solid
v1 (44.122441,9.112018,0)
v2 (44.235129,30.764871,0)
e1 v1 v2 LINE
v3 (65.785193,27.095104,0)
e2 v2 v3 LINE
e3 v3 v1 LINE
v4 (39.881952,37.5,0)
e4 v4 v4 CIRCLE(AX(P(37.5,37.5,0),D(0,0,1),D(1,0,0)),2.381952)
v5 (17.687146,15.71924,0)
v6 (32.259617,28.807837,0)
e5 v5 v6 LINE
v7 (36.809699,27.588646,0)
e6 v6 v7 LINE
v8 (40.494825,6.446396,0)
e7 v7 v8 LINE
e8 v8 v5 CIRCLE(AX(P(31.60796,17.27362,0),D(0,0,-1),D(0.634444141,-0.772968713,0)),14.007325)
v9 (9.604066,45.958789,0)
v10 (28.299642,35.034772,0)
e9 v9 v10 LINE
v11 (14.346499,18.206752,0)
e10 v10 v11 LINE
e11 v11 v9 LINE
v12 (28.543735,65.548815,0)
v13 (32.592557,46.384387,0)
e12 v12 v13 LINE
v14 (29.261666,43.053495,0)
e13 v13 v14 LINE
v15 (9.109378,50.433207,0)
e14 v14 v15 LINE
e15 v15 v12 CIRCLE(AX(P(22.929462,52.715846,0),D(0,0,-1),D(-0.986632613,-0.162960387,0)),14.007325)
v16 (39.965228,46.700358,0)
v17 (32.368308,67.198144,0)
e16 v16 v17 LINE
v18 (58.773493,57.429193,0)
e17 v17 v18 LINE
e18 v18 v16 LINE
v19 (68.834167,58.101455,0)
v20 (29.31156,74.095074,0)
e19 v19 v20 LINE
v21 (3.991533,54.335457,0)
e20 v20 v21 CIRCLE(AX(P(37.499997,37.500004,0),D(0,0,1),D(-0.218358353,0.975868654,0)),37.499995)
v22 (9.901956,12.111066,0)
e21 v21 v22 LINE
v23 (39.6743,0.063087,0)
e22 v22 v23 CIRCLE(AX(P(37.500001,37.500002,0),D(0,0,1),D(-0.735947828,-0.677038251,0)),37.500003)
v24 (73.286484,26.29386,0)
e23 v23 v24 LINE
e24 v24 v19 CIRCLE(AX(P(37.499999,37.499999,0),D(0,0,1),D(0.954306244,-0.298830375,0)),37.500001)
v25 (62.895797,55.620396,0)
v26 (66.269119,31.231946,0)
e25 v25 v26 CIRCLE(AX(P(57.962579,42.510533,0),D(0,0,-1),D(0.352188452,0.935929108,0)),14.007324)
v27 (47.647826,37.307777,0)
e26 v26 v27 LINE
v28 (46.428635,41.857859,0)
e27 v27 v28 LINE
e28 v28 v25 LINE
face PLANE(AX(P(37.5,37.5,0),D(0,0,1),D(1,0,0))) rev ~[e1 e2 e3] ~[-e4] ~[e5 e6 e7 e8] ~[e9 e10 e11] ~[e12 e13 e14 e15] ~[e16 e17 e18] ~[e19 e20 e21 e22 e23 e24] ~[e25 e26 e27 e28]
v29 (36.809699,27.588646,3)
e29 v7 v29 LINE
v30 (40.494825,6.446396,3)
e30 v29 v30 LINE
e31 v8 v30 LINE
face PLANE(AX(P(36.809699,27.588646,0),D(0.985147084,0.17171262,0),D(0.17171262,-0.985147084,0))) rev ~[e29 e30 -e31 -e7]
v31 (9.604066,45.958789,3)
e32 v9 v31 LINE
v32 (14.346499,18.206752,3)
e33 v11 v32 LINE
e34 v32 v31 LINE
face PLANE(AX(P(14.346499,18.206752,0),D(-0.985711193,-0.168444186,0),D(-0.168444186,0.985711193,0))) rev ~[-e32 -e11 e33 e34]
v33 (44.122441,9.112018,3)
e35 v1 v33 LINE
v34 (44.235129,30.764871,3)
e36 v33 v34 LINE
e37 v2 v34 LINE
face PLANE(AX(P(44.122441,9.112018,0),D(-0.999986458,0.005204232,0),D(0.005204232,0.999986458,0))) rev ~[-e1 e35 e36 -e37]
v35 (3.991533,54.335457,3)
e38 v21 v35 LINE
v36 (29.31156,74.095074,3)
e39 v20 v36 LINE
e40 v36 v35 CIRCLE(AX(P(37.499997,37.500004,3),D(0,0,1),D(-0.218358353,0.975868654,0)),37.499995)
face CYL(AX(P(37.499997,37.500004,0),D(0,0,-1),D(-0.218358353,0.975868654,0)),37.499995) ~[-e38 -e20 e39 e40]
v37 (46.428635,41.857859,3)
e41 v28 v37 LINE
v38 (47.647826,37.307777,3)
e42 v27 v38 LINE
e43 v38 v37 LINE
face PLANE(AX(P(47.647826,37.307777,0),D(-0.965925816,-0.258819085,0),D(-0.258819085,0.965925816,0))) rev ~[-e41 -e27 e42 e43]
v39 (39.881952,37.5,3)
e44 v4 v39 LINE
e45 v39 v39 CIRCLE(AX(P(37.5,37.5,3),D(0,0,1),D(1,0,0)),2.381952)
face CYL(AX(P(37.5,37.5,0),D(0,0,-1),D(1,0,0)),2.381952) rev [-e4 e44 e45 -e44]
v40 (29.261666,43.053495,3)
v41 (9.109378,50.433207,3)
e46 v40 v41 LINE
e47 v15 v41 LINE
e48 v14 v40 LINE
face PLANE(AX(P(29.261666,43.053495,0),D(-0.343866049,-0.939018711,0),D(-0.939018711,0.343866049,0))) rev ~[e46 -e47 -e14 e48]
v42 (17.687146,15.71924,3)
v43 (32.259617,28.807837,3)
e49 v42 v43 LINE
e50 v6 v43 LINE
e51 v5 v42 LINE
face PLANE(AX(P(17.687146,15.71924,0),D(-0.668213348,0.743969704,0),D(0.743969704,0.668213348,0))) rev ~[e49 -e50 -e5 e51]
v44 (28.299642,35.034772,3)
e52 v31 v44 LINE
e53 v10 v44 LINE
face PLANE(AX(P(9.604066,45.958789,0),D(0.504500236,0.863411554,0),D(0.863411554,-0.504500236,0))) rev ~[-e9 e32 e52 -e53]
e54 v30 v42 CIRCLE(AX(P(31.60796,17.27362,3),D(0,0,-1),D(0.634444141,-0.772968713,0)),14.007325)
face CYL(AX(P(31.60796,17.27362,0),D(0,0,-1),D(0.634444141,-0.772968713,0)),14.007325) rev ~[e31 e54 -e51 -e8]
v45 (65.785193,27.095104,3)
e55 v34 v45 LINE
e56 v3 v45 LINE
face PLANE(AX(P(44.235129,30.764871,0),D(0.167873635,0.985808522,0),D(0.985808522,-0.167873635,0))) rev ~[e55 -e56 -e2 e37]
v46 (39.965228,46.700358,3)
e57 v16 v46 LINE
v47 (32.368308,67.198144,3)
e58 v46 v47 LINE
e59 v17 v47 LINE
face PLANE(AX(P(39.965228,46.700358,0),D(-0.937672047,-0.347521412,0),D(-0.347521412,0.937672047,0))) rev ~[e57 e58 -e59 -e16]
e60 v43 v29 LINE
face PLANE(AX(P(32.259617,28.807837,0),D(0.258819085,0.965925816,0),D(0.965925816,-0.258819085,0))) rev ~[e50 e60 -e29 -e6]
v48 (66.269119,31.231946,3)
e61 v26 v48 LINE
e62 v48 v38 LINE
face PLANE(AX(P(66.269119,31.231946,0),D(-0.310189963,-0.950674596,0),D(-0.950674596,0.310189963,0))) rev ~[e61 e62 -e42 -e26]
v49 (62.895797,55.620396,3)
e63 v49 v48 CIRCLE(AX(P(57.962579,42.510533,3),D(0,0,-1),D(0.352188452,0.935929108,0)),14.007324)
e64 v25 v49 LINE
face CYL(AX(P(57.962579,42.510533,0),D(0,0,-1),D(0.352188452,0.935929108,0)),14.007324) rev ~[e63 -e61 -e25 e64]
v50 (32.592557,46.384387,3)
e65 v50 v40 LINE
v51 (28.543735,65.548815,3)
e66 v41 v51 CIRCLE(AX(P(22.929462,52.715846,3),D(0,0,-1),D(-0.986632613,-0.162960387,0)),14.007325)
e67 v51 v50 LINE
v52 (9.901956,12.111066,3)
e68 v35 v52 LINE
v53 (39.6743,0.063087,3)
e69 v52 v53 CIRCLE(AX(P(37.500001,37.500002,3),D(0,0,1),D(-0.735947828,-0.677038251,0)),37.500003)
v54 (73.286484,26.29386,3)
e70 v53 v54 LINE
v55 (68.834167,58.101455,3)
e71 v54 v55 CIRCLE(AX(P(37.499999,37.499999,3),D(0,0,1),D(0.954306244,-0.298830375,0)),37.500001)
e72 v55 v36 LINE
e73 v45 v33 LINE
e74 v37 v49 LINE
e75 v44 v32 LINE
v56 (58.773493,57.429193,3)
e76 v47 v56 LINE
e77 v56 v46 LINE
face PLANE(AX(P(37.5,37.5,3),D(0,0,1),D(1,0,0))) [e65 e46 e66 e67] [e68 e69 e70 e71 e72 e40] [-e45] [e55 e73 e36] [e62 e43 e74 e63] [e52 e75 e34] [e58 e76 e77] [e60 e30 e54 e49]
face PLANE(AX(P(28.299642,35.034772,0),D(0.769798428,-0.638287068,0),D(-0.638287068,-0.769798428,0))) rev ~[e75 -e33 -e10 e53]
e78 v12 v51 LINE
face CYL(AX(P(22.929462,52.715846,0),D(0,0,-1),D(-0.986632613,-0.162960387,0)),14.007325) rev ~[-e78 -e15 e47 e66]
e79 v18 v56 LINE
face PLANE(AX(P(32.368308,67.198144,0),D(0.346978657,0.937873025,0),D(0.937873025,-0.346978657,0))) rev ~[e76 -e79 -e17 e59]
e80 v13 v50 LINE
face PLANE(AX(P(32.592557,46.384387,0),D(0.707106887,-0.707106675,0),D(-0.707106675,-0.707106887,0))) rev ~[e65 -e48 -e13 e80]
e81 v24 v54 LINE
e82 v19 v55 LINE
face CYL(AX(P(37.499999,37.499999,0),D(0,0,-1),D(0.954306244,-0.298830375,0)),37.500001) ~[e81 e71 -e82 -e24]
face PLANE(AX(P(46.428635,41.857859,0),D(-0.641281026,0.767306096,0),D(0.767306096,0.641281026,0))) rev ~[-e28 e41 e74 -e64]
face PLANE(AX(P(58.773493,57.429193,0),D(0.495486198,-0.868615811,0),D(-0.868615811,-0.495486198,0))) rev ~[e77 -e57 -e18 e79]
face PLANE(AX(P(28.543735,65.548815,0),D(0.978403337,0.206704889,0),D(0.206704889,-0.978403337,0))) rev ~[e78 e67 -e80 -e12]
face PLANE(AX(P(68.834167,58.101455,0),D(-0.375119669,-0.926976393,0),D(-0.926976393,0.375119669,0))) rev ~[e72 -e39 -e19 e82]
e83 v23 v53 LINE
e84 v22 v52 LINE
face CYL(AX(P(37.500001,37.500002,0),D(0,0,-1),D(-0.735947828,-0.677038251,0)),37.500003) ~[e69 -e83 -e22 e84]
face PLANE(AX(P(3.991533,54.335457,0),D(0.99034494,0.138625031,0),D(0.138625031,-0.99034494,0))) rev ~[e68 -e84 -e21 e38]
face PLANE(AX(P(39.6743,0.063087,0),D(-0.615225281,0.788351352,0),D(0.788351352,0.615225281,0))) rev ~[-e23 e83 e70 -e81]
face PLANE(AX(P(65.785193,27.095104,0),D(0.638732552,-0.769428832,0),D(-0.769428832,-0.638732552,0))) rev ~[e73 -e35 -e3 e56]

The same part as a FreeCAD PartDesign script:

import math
import FreeCAD as App
import Part
import Sketcher

V = App.Vector
Q = App.Units.Quantity


def add_polygon(sketch, points):
    """Adds a closed chain of lines whose ends are joined by coincident constraints."""
    first, n = sketch.GeometryCount, len(points)
    for a, b in zip(points, points[1:] + points[:1]):
        sketch.addGeometry(Part.LineSegment(App.Vector(*a, 0), App.Vector(*b, 0)), False)
    for i in range(n):
        sketch.addConstraint(Sketcher.Constraint("Coincident", first + i, 2, first + (i + 1) % n, 1))

doc = App.newDocument("Part")
body = doc.addObject("PartDesign::Body", "Body")

# Sketch on XY plane
sketch1 = body.newObject("Sketcher::SketchObject", "Sketch")
sketch1.AttachmentSupport = (doc.getObject("XY_Plane"), [""])
sketch1.MapMode = "FlatFace"
sketch1.addGeometry(Part.LineSegment(V(68.834167, 58.101455, 0), V(29.31156, 74.095074, 0)), False)  # 0
sketch1.addGeometry(Part.ArcOfCircle(Part.Circle(V(37.499997, 37.500004, 0), V(0, 0, 1), 37.499995), math.radians(102.612629), math.radians(153.323954)), False)  # 1
sketch1.addGeometry(Part.LineSegment(V(3.991533, 54.335457, 0), V(9.901956, 12.111066, 0)), False)  # 2
sketch1.addGeometry(Part.ArcOfCircle(Part.Circle(V(37.500001, 37.500002, 0), V(0, 0, 1), 37.500003), math.radians(-137.387367), math.radians(-86.676053)), False)  # 3
sketch1.addGeometry(Part.LineSegment(V(39.6743, 0.063087, 0), V(73.286484, 26.29386, 0)), False)  # 4
sketch1.addGeometry(Part.ArcOfCircle(Part.Circle(V(37.499999, 37.499999, 0), V(0, 0, 1), 37.500001), math.radians(-17.387366), math.radians(33.32395)), False)  # 5
sketch1.addGeometry(Part.LineSegment(V(36.809699, 27.588646, 0), V(40.494825, 6.446396, 0)), False)  # 6
sketch1.addGeometry(Part.ArcOfCircle(Part.Circle(V(31.60796, 17.27362, 0), V(0, 0, 1), 14.007325), math.radians(-173.628818), math.radians(-50.62123)), False)  # 7
sketch1.addGeometry(Part.LineSegment(V(17.687146, 15.71924, 0), V(32.259617, 28.807837, 0)), False)  # 8
sketch1.addGeometry(Part.LineSegment(V(32.259617, 28.807837, 0), V(36.809699, 27.588646, 0)), False)  # 9
add_polygon(sketch1, [(28.299642, 35.034772), (14.346499, 18.206752), (9.604066, 45.958789)])  # lines 10-12
add_polygon(sketch1, [(65.785193, 27.095104), (44.122441, 9.112018), (44.235129, 30.764871)])  # lines 13-15
sketch1.addGeometry(Part.Circle(V(37.5, 37.5, 0), V(0, 0, 1), 2.381952), False)  # 16
sketch1.addGeometry(Part.LineSegment(V(28.543735, 65.548815, 0), V(32.592557, 46.384387, 0)), False)  # 17
sketch1.addGeometry(Part.LineSegment(V(32.592557, 46.384387, 0), V(29.261666, 43.053495, 0)), False)  # 18
sketch1.addGeometry(Part.LineSegment(V(29.261666, 43.053495, 0), V(9.109378, 50.433207, 0)), False)  # 19
sketch1.addGeometry(Part.ArcOfCircle(Part.Circle(V(22.929462, 52.715846, 0), V(0, 0, 1), 14.007325), math.radians(66.371187), math.radians(189.37877)), False)  # 20
sketch1.addGeometry(Part.LineSegment(V(46.428635, 41.857859, 0), V(62.895797, 55.620396, 0)), False)  # 21
sketch1.addGeometry(Part.ArcOfCircle(Part.Circle(V(57.962579, 42.510533, 0), V(0, 0, 1), 14.007324), math.radians(-53.628814), math.radians(69.378771)), False)  # 22
sketch1.addGeometry(Part.LineSegment(V(66.269119, 31.231946, 0), V(47.647826, 37.307777, 0)), False)  # 23
sketch1.addGeometry(Part.LineSegment(V(47.647826, 37.307777, 0), V(46.428635, 41.857859, 0)), False)  # 24
add_polygon(sketch1, [(32.368308, 67.198144), (58.773493, 57.429193), (39.965228, 46.700358)])  # lines 25-27
sketch1.addConstraint([
    Sketcher.Constraint("Coincident", 0, 2, 1, 1),
    Sketcher.Constraint("Coincident", 1, 2, 2, 1),
    Sketcher.Constraint("Coincident", 2, 2, 3, 1),
    Sketcher.Constraint("Coincident", 3, 2, 4, 1),
    Sketcher.Constraint("Coincident", 4, 2, 5, 1),
    Sketcher.Constraint("Coincident", 5, 2, 0, 1),
    Sketcher.Constraint("Coincident", 6, 2, 7, 2),
    Sketcher.Constraint("Coincident", 7, 1, 8, 1),
    Sketcher.Constraint("Coincident", 8, 2, 9, 1),
    Sketcher.Constraint("Coincident", 9, 2, 6, 1),
    Sketcher.Constraint("Coincident", 17, 2, 18, 1),
    Sketcher.Constraint("Coincident", 18, 2, 19, 1),
    Sketcher.Constraint("Coincident", 19, 2, 20, 2),
    Sketcher.Constraint("Coincident", 20, 1, 17, 1),
    Sketcher.Constraint("Coincident", 21, 2, 22, 2),
    Sketcher.Constraint("Coincident", 22, 1, 23, 1),
    Sketcher.Constraint("Coincident", 23, 2, 24, 1),
    Sketcher.Constraint("Coincident", 24, 2, 21, 1),
    Sketcher.Constraint("Coincident", 3, 3, 1, 3),
    Sketcher.Constraint("Coincident", 5, 3, 1, 3),
    Sketcher.Constraint("Coincident", 16, 3, 1, 3),
    Sketcher.Constraint("Equal", 3, 5),
    Sketcher.Constraint("Equal", 7, 20),
    Sketcher.Constraint("Equal", 20, 22),
    Sketcher.Constraint("Equal", 0, 2),
    Sketcher.Constraint("Equal", 2, 4),
    Sketcher.Constraint("Equal", 11, 13),
    Sketcher.Constraint("Equal", 12, 14),
    Sketcher.Constraint("Equal", 10, 15),
    Sketcher.Constraint("Equal", 8, 17),
    Sketcher.Constraint("Equal", 9, 18),
    Sketcher.Constraint("Equal", 6, 19),
    Sketcher.Constraint("Equal", 19, 21),
    Sketcher.Constraint("Equal", 17, 23),
    Sketcher.Constraint("Equal", 18, 24),
    Sketcher.Constraint("Equal", 13, 25),
    Sketcher.Constraint("Equal", 14, 26),
    Sketcher.Constraint("Equal", 15, 27),
    Sketcher.Constraint("Radius", 5, Q("37.500001 mm")),
    Sketcher.Constraint("Angle", 9, Q("-15.000002 deg")),
    Sketcher.Constraint("Angle", 18, Q("-134.999991 deg")),
    Sketcher.Constraint("Angle", 24, Q("105.000002 deg")),
    Sketcher.Constraint("DistanceX", -1, 1, 3, 3, Q("37.500001 mm")),
    Sketcher.Constraint("DistanceY", -1, 1, 5, 3, Q("37.499999 mm")),
    Sketcher.Constraint("Diameter", 16, Q("4.763904 mm")),
    Sketcher.Constraint("Radius", 1, Q("37.499995 mm")),
    Sketcher.Constraint("Radius", 7, Q("14.007325 mm")),
    Sketcher.Constraint("DistanceX", -1, 1, 3, 2, Q("39.6743 mm")),
    Sketcher.Constraint("DistanceX", -1, 1, 9, 2, Q("36.809699 mm")),
    Sketcher.Constraint("DistanceX", -1, 1, 10, 2, Q("14.346499 mm")),
    Sketcher.Constraint("DistanceX", 20, 3, 7, 3, Q("8.678498 mm")),
    Sketcher.Constraint("DistanceX", 20, 3, 0, 2, Q("6.382098 mm")),
    Sketcher.Constraint("DistanceY", 13, 2, 7, 3, Q("8.161602 mm")),
    Sketcher.Constraint("DistanceY", 24, 2, 26, 2, Q("4.842499 mm")),
    Sketcher.Constraint("Distance", 6, Q("21.461009 mm")),
    Sketcher.Constraint("Distance", 9, Q("4.710592 mm")),
    Sketcher.Constraint("Distance", 11, Q("28.154329 mm")),
    Sketcher.Constraint("Distance", 17, Q("19.587452 mm")),
    Sketcher.Constraint("DistanceX", -1, 1, 7, 3, Q("31.60796 mm")),
    Sketcher.Constraint("DistanceY", -1, 1, 7, 3, Q("17.27362 mm")),
    Sketcher.Constraint("DistanceX", -1, 1, 22, 3, Q("57.962579 mm")),
    Sketcher.Constraint("DistanceY", -1, 1, 4, 2, Q("26.29386 mm")),
    Sketcher.Constraint("DistanceY", -1, 1, 7, 1, Q("15.71924 mm")),
    Sketcher.Constraint("DistanceY", -1, 1, 11, 2, Q("45.958789 mm")),
    Sketcher.Constraint("DistanceX", -1, 1, 12, 2, Q("28.299642 mm")),
    Sketcher.Constraint("DistanceY", -1, 1, 12, 2, Q("35.034772 mm")),
    Sketcher.Constraint("DistanceX", -1, 1, 13, 2, Q("44.122441 mm")),
    Sketcher.Constraint("DistanceX", -1, 1, 14, 2, Q("44.235129 mm")),
    Sketcher.Constraint("DistanceY", -1, 1, 14, 2, Q("30.764871 mm")),
    Sketcher.Constraint("DistanceX", -1, 1, 22, 1, Q("66.269119 mm")),
    Sketcher.Constraint("DistanceY", -1, 1, 24, 2, Q("41.857859 mm")),
    Sketcher.Constraint("DistanceX", -1, 1, 26, 2, Q("39.965228 mm")),
    Sketcher.Constraint("DistanceY", 3, 3, 22, 3, Q("5.010531 mm")),
    Sketcher.Constraint("DistanceX", 1, 2, 20, 3, Q("18.937929 mm")),
    Sketcher.Constraint("DistanceY", 20, 3, 1, 2, Q("1.619611 mm")),
    Sketcher.Constraint("DistanceX", 17, 2, 1, 3, Q("4.90744 mm")),
    Sketcher.Constraint("DistanceY", 17, 2, 20, 3, Q("6.331459 mm")),
    Sketcher.Constraint("DistanceY", 22, 3, 25, 2, Q("14.91866 mm")),
])
pad1 = body.newObject("PartDesign::Pad", "Pad")
pad1.Profile = sketch1
pad1.Length = 3

doc.recompute()
